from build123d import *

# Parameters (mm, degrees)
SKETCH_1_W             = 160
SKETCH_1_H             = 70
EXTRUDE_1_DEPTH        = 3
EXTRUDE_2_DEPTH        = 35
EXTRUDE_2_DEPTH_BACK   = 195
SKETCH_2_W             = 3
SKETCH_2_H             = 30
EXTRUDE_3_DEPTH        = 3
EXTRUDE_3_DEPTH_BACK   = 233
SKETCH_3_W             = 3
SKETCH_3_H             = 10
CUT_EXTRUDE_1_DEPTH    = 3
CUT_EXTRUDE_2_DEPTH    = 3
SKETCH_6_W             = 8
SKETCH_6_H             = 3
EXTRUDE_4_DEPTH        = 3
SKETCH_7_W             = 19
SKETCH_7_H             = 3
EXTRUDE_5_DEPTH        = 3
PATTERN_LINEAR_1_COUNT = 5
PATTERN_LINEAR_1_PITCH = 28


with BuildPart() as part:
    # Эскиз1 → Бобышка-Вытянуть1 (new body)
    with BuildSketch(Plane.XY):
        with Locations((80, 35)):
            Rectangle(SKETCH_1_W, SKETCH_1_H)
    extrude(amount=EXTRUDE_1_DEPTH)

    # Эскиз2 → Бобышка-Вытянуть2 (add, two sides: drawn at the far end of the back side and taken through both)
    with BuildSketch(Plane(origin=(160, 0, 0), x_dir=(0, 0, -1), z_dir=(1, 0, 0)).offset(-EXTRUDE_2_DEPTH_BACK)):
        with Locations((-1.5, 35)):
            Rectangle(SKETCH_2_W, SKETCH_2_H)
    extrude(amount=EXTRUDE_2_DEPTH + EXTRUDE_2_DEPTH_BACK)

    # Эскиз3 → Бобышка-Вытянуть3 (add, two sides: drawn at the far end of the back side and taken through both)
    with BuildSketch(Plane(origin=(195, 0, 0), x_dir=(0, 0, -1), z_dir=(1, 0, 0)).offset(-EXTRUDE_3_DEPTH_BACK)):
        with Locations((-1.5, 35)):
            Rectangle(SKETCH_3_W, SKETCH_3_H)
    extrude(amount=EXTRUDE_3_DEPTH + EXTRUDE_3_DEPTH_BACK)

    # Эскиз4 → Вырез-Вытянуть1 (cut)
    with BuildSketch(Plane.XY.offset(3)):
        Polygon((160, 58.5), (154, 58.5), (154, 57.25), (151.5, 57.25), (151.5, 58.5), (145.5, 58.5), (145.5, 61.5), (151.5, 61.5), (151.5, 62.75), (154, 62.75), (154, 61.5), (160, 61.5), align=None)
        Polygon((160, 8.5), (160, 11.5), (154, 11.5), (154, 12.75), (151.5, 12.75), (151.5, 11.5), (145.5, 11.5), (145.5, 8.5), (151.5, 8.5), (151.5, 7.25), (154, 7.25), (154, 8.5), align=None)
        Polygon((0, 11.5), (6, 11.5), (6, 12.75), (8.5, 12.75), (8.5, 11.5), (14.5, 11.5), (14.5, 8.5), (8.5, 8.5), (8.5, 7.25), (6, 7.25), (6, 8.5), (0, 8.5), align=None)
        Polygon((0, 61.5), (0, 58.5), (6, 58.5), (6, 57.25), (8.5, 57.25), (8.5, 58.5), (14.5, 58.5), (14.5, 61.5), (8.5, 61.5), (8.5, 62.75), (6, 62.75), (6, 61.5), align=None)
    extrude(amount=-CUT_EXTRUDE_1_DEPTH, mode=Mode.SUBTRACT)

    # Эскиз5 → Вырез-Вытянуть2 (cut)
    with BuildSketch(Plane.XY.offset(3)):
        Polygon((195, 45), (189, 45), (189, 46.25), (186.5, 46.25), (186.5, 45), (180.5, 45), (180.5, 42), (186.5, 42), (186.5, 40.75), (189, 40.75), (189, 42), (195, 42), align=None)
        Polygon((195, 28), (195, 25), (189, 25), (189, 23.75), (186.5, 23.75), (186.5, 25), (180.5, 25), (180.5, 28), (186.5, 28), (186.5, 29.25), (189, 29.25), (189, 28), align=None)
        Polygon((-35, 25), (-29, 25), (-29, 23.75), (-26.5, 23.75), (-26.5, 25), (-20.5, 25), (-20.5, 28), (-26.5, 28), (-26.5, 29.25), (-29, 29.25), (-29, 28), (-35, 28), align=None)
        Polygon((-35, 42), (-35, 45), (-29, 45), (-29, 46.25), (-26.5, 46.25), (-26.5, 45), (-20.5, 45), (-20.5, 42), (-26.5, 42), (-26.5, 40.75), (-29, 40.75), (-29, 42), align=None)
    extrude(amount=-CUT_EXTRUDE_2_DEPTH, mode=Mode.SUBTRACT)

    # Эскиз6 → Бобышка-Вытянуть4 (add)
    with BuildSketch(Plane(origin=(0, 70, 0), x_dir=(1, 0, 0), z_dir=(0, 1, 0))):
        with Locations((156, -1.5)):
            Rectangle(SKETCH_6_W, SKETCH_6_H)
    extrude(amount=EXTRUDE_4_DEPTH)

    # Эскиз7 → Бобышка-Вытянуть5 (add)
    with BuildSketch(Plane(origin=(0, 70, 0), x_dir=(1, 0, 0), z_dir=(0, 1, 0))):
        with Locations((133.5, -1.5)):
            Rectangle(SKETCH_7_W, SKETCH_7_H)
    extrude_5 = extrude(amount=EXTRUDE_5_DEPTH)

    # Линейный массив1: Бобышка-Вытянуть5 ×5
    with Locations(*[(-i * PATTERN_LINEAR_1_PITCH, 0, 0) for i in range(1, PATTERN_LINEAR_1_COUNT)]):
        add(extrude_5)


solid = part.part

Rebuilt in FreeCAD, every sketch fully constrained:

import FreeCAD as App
import Part
import Sketcher
from FreeCAD import Vector
Q = App.Units.Quantity


def add_polygon(sketch, points):
    """Adds a closed chain of lines whose ends are joined by coincident constraints."""
    first, n = sketch.GeometryCount, len(points)
    for a, b in zip(points, points[1:] + points[:1]):
        sketch.addGeometry(Part.LineSegment(App.Vector(*a, 0), App.Vector(*b, 0)), False)
    for i in range(n):
        sketch.addConstraint(Sketcher.Constraint("Coincident", first + i, 2, first + (i + 1) % n, 1))

doc = App.newDocument("Part")
body = doc.addObject("PartDesign::Body", "Body")

sketch1 = body.newObject("Sketcher::SketchObject", "Sketch")
sketch1.AttachmentSupport = (doc.getObject("XY_Plane"), [""])
sketch1.MapMode = "FlatFace"
add_polygon(sketch1, [(0, 70), (0, 0), (160, 0), (160, 70)])
sketch1.addConstraint([
    Sketcher.Constraint("Vertical", 0),
    Sketcher.Constraint("Horizontal", 1),
    Sketcher.Constraint("Vertical", 2),
    Sketcher.Constraint("Horizontal", 3),
    Sketcher.Constraint("Coincident", 0, 2, -1, 1),
    Sketcher.Constraint("DistanceX", 1, 1, 1, 2, Q("160 mm")),
    Sketcher.Constraint("DistanceY", 0, 2, 0, 1, Q("70 mm")),
])
pad1 = body.newObject("PartDesign::Pad", "Pad")
pad1.Profile = sketch1
pad1.Length = 3

sketch2 = body.newObject("Sketcher::SketchObject", "Sketch001")
sketch2.AttachmentSupport = (doc.getObject("YZ_Plane"), [""])
sketch2.MapMode = "FlatFace"
sketch2.AttachmentOffset = App.Placement(Vector(0, 0, 160), App.Rotation())
add_polygon(sketch2, [(50, 3), (20, 3), (20, 0), (50, 0)])
sketch2.addConstraint([
    Sketcher.Constraint("Horizontal", 0),
    Sketcher.Constraint("Vertical", 1),
    Sketcher.Constraint("Horizontal", 2),
    Sketcher.Constraint("Vertical", 3),
    Sketcher.Constraint("PointOnObject", 1, 2, -1),
    Sketcher.Constraint("DistanceX", 0, 2, 0, 1, Q("30 mm")),
    Sketcher.Constraint("DistanceY", 1, 2, 1, 1, Q("3 mm")),
    Sketcher.Constraint("DistanceX", -1, 1, 0, 2, Q("20 mm")),
])
pad2 = body.newObject("PartDesign::Pad", "Pad001")
pad2.Profile = sketch2
pad2.Type = "TwoLengths"
pad2.Length = 35
pad2.Length2 = 195

sketch3 = body.newObject("Sketcher::SketchObject", "Sketch002")
sketch3.AttachmentSupport = (doc.getObject("YZ_Plane"), [""])
sketch3.MapMode = "FlatFace"
sketch3.AttachmentOffset = App.Placement(Vector(0, 0, 195), App.Rotation())
add_polygon(sketch3, [(40, 3), (30, 3), (30, 0), (40, 0)])
sketch3.addConstraint([
    Sketcher.Constraint("Horizontal", 0),
    Sketcher.Constraint("Vertical", 1),
    Sketcher.Constraint("Horizontal", 2),
    Sketcher.Constraint("Vertical", 3),
    Sketcher.Constraint("PointOnObject", 1, 2, -1),
    Sketcher.Constraint("DistanceX", 0, 2, 0, 1, Q("10 mm")),
    Sketcher.Constraint("DistanceY", 1, 2, 1, 1, Q("3 mm")),
    Sketcher.Constraint("DistanceX", -1, 1, 0, 2, Q("30 mm")),
])
pad3 = body.newObject("PartDesign::Pad", "Pad002")
pad3.Profile = sketch3
pad3.Type = "TwoLengths"
pad3.Length = 3
pad3.Length2 = 233

sketch4 = body.newObject("Sketcher::SketchObject", "Sketch003")
sketch4.AttachmentSupport = (doc.getObject("XY_Plane"), [""])
sketch4.MapMode = "FlatFace"
sketch4.AttachmentOffset = App.Placement(Vector(0, 0, 3), App.Rotation())
add_polygon(sketch4, [(154, 58.5), (160, 58.5), (160, 61.5), (154, 61.5), (154, 62.8), (151.5, 62.8), (151.5, 61.5), (145.5, 61.5), (145.5, 58.5), (151.5, 58.5), (151.5, 57.2), (154, 57.2)])
add_polygon(sketch4, [(160, 8.5), (160, 11.5), (154, 11.5), (154, 12.8), (151.5, 12.8), (151.5, 11.5), (145.5, 11.5), (145.5, 8.5), (151.5, 8.5), (151.5, 7.2), (154, 7.2), (154, 8.5)])
add_polygon(sketch4, [(6, 11.5), (0, 11.5), (0, 8.5), (6, 8.5), (6, 7.2), (8.5, 7.2), (8.5, 8.5), (14.5, 8.5), (14.5, 11.5), (8.5, 11.5), (8.5, 12.8), (6, 12.8)])
add_polygon(sketch4, [(0, 61.5), (0, 58.5), (6, 58.5), (6, 57.2), (8.5, 57.2), (8.5, 58.5), (14.5, 58.5), (14.5, 61.5), (8.5, 61.5), (8.5, 62.8), (6, 62.8), (6, 61.5)])
sketch4.addConstraint([
    Sketcher.Constraint("Horizontal", 0),
    Sketcher.Constraint("Vertical", 1),
    Sketcher.Constraint("Horizontal", 2),
    Sketcher.Constraint("Vertical", 3),
    Sketcher.Constraint("Horizontal", 4),
    Sketcher.Constraint("Vertical", 5),
    Sketcher.Constraint("Horizontal", 6),
    Sketcher.Constraint("Vertical", 7),
    Sketcher.Constraint("Horizontal", 8),
    Sketcher.Constraint("Vertical", 9),
    Sketcher.Constraint("Horizontal", 10),
    Sketcher.Constraint("Vertical", 11),
    Sketcher.Constraint("Vertical", 12),
    Sketcher.Constraint("Horizontal", 13),
    Sketcher.Constraint("Vertical", 14),
    Sketcher.Constraint("Horizontal", 15),
    Sketcher.Constraint("Vertical", 16),
    Sketcher.Constraint("Horizontal", 17),
    Sketcher.Constraint("Vertical", 18),
    Sketcher.Constraint("Horizontal", 19),
    Sketcher.Constraint("Vertical", 20),
    Sketcher.Constraint("Horizontal", 21),
    Sketcher.Constraint("Vertical", 22),
    Sketcher.Constraint("Horizontal", 23),
    Sketcher.Constraint("Horizontal", 24),
    Sketcher.Constraint("Vertical", 25),
    Sketcher.Constraint("Horizontal", 26),
    Sketcher.Constraint("Vertical", 27),
    Sketcher.Constraint("Horizontal", 28),
    Sketcher.Constraint("Vertical", 29),
    Sketcher.Constraint("Horizontal", 30),
    Sketcher.Constraint("Vertical", 31),
    Sketcher.Constraint("Horizontal", 32),
    Sketcher.Constraint("Vertical", 33),
    Sketcher.Constraint("Horizontal", 34),
    Sketcher.Constraint("Vertical", 35),
    Sketcher.Constraint("Vertical", 36),
    Sketcher.Constraint("Horizontal", 37),
    Sketcher.Constraint("Vertical", 38),
    Sketcher.Constraint("Horizontal", 39),
    Sketcher.Constraint("Vertical", 40),
    Sketcher.Constraint("Horizontal", 41),
    Sketcher.Constraint("Vertical", 42),
    Sketcher.Constraint("Horizontal", 43),
    Sketcher.Constraint("Vertical", 44),
    Sketcher.Constraint("Horizontal", 45),
    Sketcher.Constraint("Vertical", 46),
    Sketcher.Constraint("Horizontal", 47),
    Sketcher.Constraint("PointOnObject", 24, 2, -2),
    Sketcher.Constraint("PointOnObject", 36, 2, -2),
    Sketcher.Constraint("Horizontal", 2, 2, 5, 2),
    Sketcher.Constraint("Horizontal", 0, 2, 7, 2),
    Sketcher.Constraint("Horizontal", 13, 2, 16, 2),
    Sketcher.Constraint("Horizontal", 19, 2, 22, 2),
    Sketcher.Constraint("Horizontal", 17, 2, 24, 2),
    Sketcher.Constraint("Horizontal", 23, 2, 25, 2),
    Sketcher.Constraint("Horizontal", 21, 2, 27, 2),
    Sketcher.Constraint("Horizontal", 26, 2, 29, 2),
    Sketcher.Constraint("Horizontal", 24, 2, 31, 2),
    Sketcher.Constraint("Horizontal", 15, 2, 33, 2),
    Sketcher.Constraint("Horizontal", 11, 2, 36, 2),
    Sketcher.Constraint("Horizontal", 10, 2, 38, 2),
    Sketcher.Constraint("Horizontal", 37, 2, 40, 2),
    Sketcher.Constraint("Horizontal", 6, 2, 42, 2),
    Sketcher.Constraint("Horizontal", 4, 2, 44, 2),
    Sketcher.Constraint("Horizontal", 43, 2, 46, 2),
    Sketcher.Constraint("Vertical", 5, 2, 8, 2),
    Sketcher.Constraint("Vertical", 3, 2, 10, 2),
    Sketcher.Constraint("Vertical", 1, 2, 12, 2),
    Sketcher.Constraint("Vertical", 11, 2, 13, 2),
    Sketcher.Constraint("Vertical", 9, 2, 15, 2),
    Sketcher.Constraint("Vertical", 7, 2, 17, 2),
    Sketcher.Constraint("Vertical", 16, 2, 19, 2),
    Sketcher.Constraint("Vertical", 14, 2, 21, 2),
    Sketcher.Constraint("Vertical", 29, 2, 32, 2),
    Sketcher.Constraint("Vertical", 27, 2, 34, 2),
    Sketcher.Constraint("Vertical", 35, 2, 37, 2),
    Sketcher.Constraint("Vertical", 33, 2, 39, 2),
    Sketcher.Constraint("Vertical", 31, 2, 41, 2),
    Sketcher.Constraint("Vertical", 40, 2, 43, 2),
    Sketcher.Constraint("Vertical", 38, 2, 45, 2),
    Sketcher.Constraint("Equal", 2, 6),
    Sketcher.Constraint("Equal", 23, 24),
    Sketcher.Constraint("Equal", 21, 28),
    Sketcher.Constraint("Equal", 26, 30),
    Sketcher.Constraint("Equal", 5, 9),
    Sketcher.Constraint("Equal", 7, 12),
    Sketcher.Constraint("Equal", 11, 14),
    Sketcher.Constraint("Equal", 16, 20),
    Sketcher.Constraint("DistanceX", 0, 1, 0, 2, Q("6 mm")),
    Sketcher.Constraint("DistanceY", 1, 1, 1, 2, Q("3 mm")),
    Sketcher.Constraint("DistanceX", 4, 2, 4, 1, Q("2.5 mm")),
    Sketcher.Constraint("DistanceX", -1, 1, 0, 2, Q("160 mm")),
    Sketcher.Constraint("DistanceY", 12, 2, 0, 2, Q("47 mm")),
    Sketcher.Constraint("DistanceY", 3, 1, 3, 2, Q("1.25 mm")),
    Sketcher.Constraint("DistanceY", -1, 1, 0, 2, Q("58.5 mm")),
])
pocket1 = body.newObject("PartDesign::Pocket", "Pocket")
pocket1.Profile = sketch4
pocket1.Length = 3

sketch5 = body.newObject("Sketcher::SketchObject", "Sketch004")
sketch5.AttachmentSupport = (doc.getObject("XY_Plane"), [""])
sketch5.MapMode = "FlatFace"
sketch5.AttachmentOffset = App.Placement(Vector(0, 0, 3), App.Rotation())
add_polygon(sketch5, [(195, 45), (189, 45), (189, 46.2), (186.5, 46.2), (186.5, 45), (180.5, 45), (180.5, 42), (186.5, 42), (186.5, 40.8), (189, 40.8), (189, 42), (195, 42)])
add_polygon(sketch5, [(195, 25), (195, 28), (189, 28), (189, 29.2), (186.5, 29.2), (186.5, 28), (180.5, 28), (180.5, 25), (186.5, 25), (186.5, 23.8), (189, 23.8), (189, 25)])
add_polygon(sketch5, [(-35, 25), (-29, 25), (-29, 23.8), (-26.5, 23.8), (-26.5, 25), (-20.5, 25), (-20.5, 28), (-26.5, 28), (-26.5, 29.2), (-29, 29.2), (-29, 28), (-35, 28)])
add_polygon(sketch5, [(-35, 45), (-35, 42), (-29, 42), (-29, 40.8), (-26.5, 40.8), (-26.5, 42), (-20.5, 42), (-20.5, 45), (-26.5, 45), (-26.5, 46.2), (-29, 46.2), (-29, 45)])
sketch5.addConstraint([
    Sketcher.Constraint("Horizontal", 0),
    Sketcher.Constraint("Vertical", 1),
    Sketcher.Constraint("Horizontal", 2),
    Sketcher.Constraint("Vertical", 3),
    Sketcher.Constraint("Horizontal", 4),
    Sketcher.Constraint("Vertical", 5),
    Sketcher.Constraint("Horizontal", 6),
    Sketcher.Constraint("Vertical", 7),
    Sketcher.Constraint("Horizontal", 8),
    Sketcher.Constraint("Vertical", 9),
    Sketcher.Constraint("Horizontal", 10),
    Sketcher.Constraint("Vertical", 11),
    Sketcher.Constraint("Vertical", 12),
    Sketcher.Constraint("Horizontal", 13),
    Sketcher.Constraint("Vertical", 14),
    Sketcher.Constraint("Horizontal", 15),
    Sketcher.Constraint("Vertical", 16),
    Sketcher.Constraint("Horizontal", 17),
    Sketcher.Constraint("Vertical", 18),
    Sketcher.Constraint("Horizontal", 19),
    Sketcher.Constraint("Vertical", 20),
    Sketcher.Constraint("Horizontal", 21),
    Sketcher.Constraint("Vertical", 22),
    Sketcher.Constraint("Horizontal", 23),
    Sketcher.Constraint("Horizontal", 24),
    Sketcher.Constraint("Vertical", 25),
    Sketcher.Constraint("Horizontal", 26),
    Sketcher.Constraint("Vertical", 27),
    Sketcher.Constraint("Horizontal", 28),
    Sketcher.Constraint("Vertical", 29),
    Sketcher.Constraint("Horizontal", 30),
    Sketcher.Constraint("Vertical", 31),
    Sketcher.Constraint("Horizontal", 32),
    Sketcher.Constraint("Vertical", 33),
    Sketcher.Constraint("Horizontal", 34),
    Sketcher.Constraint("Vertical", 35),
    Sketcher.Constraint("Vertical", 36),
    Sketcher.Constraint("Horizontal", 37),
    Sketcher.Constraint("Vertical", 38),
    Sketcher.Constraint("Horizontal", 39),
    Sketcher.Constraint("Vertical", 40),
    Sketcher.Constraint("Horizontal", 41),
    Sketcher.Constraint("Vertical", 42),
    Sketcher.Constraint("Horizontal", 43),
    Sketcher.Constraint("Vertical", 44),
    Sketcher.Constraint("Horizontal", 45),
    Sketcher.Constraint("Vertical", 46),
    Sketcher.Constraint("Horizontal", 47),
    Sketcher.Constraint("Horizontal", 0, 2, 3, 2),
    Sketcher.Constraint("Horizontal", 6, 2, 9, 2),
    Sketcher.Constraint("Horizontal", 13, 2, 16, 2),
    Sketcher.Constraint("Horizontal", 19, 2, 22, 2),
    Sketcher.Constraint("Horizontal", 23, 2, 24, 2),
    Sketcher.Constraint("Horizontal", 21, 2, 25, 2),
    Sketcher.Constraint("Horizontal", 24, 2, 27, 2),
    Sketcher.Constraint("Horizontal", 17, 2, 29, 2),
    Sketcher.Constraint("Horizontal", 15, 2, 31, 2),
    Sketcher.Constraint("Horizontal", 30, 2, 33, 2),
    Sketcher.Constraint("Horizontal", 10, 2, 36, 2),
    Sketcher.Constraint("Horizontal", 8, 2, 38, 2),
    Sketcher.Constraint("Horizontal", 37, 2, 40, 2),
    Sketcher.Constraint("Horizontal", 11, 2, 42, 2),
    Sketcher.Constraint("Horizontal", 2, 2, 44, 2),
    Sketcher.Constraint("Horizontal", 43, 2, 46, 2),
    Sketcher.Constraint("Vertical", 3, 2, 6, 2),
    Sketcher.Constraint("Vertical", 1, 2, 8, 2),
    Sketcher.Constraint("Vertical", 11, 2, 12, 2),
    Sketcher.Constraint("Vertical", 9, 2, 13, 2),
    Sketcher.Constraint("Vertical", 7, 2, 15, 2),
    Sketcher.Constraint("Vertical", 5, 2, 17, 2),
    Sketcher.Constraint("Vertical", 16, 2, 19, 2),
    Sketcher.Constraint("Vertical", 14, 2, 21, 2),
    Sketcher.Constraint("Vertical", 27, 2, 30, 2),
    Sketcher.Constraint("Vertical", 25, 2, 32, 2),
    Sketcher.Constraint("Vertical", 35, 2, 36, 2),
    Sketcher.Constraint("Vertical", 33, 2, 37, 2),
    Sketcher.Constraint("Vertical", 31, 2, 39, 2),
    Sketcher.Constraint("Vertical", 29, 2, 41, 2),
    Sketcher.Constraint("Vertical", 40, 2, 43, 2),
    Sketcher.Constraint("Vertical", 38, 2, 45, 2),
    Sketcher.Constraint("Equal", 0, 4),
    Sketcher.Constraint("Equal", 23, 24),
    Sketcher.Constraint("Equal", 21, 26),
    Sketcher.Constraint("Equal", 24, 28),
    Sketcher.Constraint("Equal", 3, 7),
    Sketcher.Constraint("Equal", 11, 12),
    Sketcher.Constraint("Equal", 9, 14),
    Sketcher.Constraint("Equal", 16, 20),
    Sketcher.Constraint("DistanceX", 0, 2, 0, 1, Q("6 mm")),
    Sketcher.Constraint("DistanceY", 5, 2, 5, 1, Q("3 mm")),
    Sketcher.Constraint("DistanceX", 2, 2, 2, 1, Q("2.5 mm")),
    Sketcher.Constraint("DistanceX", -1, 1, 0, 2, Q("189 mm")),
    Sketcher.Constraint("DistanceY", -1, 1, 0, 2, Q("45 mm")),
    Sketcher.Constraint("DistanceY", -1, 1, 12, 2, Q("28 mm")),
    Sketcher.Constraint("DistanceX", 24, 2, -1, 1, Q("29 mm")),
    Sketcher.Constraint("DistanceY", 1, 1, 1, 2, Q("1.25 mm")),
])
pocket2 = body.newObject("PartDesign::Pocket", "Pocket001")
pocket2.Profile = sketch5
pocket2.Length = 3

sketch6 = body.newObject("Sketcher::SketchObject", "Sketch005")
sketch6.AttachmentSupport = (doc.getObject("XZ_Plane"), [""])
sketch6.MapMode = "FlatFace"
sketch6.AttachmentOffset = App.Placement(Vector(0, 0, -70), App.Rotation())
add_polygon(sketch6, [(152, 0), (152, 3), (160, 3), (160, 0)])
sketch6.addConstraint([
    Sketcher.Constraint("Vertical", 0),
    Sketcher.Constraint("Horizontal", 1),
    Sketcher.Constraint("Vertical", 2),
    Sketcher.Constraint("Horizontal", 3),
    Sketcher.Constraint("PointOnObject", 2, 2, -1),
    Sketcher.Constraint("DistanceX", 1, 1, 1, 2, Q("8 mm")),
    Sketcher.Constraint("DistanceY", 0, 1, 0, 2, Q("3 mm")),
    Sketcher.Constraint("DistanceX", -1, 1, 0, 2, Q("152 mm")),
])
pad4 = body.newObject("PartDesign::Pad", "Pad003")
pad4.Profile = sketch6
pad4.Length = 3
pad4.Reversed = True

sketch7 = body.newObject("Sketcher::SketchObject", "Sketch006")
sketch7.AttachmentSupport = (doc.getObject("XZ_Plane"), [""])
sketch7.MapMode = "FlatFace"
sketch7.AttachmentOffset = App.Placement(Vector(0, 0, -70), App.Rotation())
add_polygon(sketch7, [(124, 0), (124, 3), (143, 3), (143, 0)])
sketch7.addConstraint([
    Sketcher.Constraint("Vertical", 0),
    Sketcher.Constraint("Horizontal", 1),
    Sketcher.Constraint("Vertical", 2),
    Sketcher.Constraint("Horizontal", 3),
    Sketcher.Constraint("PointOnObject", 2, 2, -1),
    Sketcher.Constraint("DistanceX", 1, 1, 1, 2, Q("19 mm")),
    Sketcher.Constraint("DistanceY", 0, 1, 0, 2, Q("3 mm")),
    Sketcher.Constraint("DistanceX", -1, 1, 0, 2, Q("124 mm")),
])
pad5 = body.newObject("PartDesign::Pad", "Pad004")
pad5.Profile = sketch7
pad5.Length = 3
pad5.Reversed = True
doc.recompute()

linearpattern = body.newObject("PartDesign::LinearPattern", "LinearPattern")
linearpattern.Originals = [pad5]
linearpattern.Direction = (doc.getObject("X_Axis"), [""])
linearpattern.Mode = "offset"
linearpattern.Offset = 28
linearpattern.Occurrences = 5
linearpattern.Reversed = True
body.Tip = linearpattern

doc.recompute()
